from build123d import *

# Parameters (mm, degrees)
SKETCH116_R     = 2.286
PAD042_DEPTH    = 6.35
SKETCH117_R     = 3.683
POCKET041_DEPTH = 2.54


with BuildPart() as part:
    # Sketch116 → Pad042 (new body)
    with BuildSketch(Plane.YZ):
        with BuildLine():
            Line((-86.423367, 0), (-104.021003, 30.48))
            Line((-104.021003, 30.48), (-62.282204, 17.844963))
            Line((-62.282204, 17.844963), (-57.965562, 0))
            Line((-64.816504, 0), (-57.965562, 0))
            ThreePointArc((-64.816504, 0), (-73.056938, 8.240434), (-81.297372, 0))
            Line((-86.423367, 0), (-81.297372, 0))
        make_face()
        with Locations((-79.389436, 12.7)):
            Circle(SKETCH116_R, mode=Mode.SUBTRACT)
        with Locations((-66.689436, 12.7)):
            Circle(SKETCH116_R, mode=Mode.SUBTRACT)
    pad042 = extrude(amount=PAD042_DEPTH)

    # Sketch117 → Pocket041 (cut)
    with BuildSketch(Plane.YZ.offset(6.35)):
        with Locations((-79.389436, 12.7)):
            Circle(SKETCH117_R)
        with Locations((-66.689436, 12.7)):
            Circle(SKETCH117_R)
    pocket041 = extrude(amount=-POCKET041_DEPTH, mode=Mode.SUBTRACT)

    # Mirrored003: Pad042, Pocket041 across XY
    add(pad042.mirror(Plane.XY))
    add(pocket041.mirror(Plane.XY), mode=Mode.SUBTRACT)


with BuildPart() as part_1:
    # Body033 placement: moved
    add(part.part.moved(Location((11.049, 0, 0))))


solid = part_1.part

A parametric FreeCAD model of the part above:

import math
import FreeCAD as App
import Part
import Sketcher

V = App.Vector
Q = App.Units.Quantity

doc = App.newDocument("Part")
body = doc.addObject("PartDesign::Body", "Body")

# Sketch on YZ plane
sketch1 = body.newObject("Sketcher::SketchObject", "Sketch")
sketch1.AttachmentSupport = (doc.getObject("YZ_Plane"), [""])
sketch1.MapMode = "FlatFace"
sketch1.addGeometry([
    Part.LineSegment(V(-104.021003, 30.48, 0), V(-86.423367, 0, 0)),  # 0
    Part.LineSegment(V(-86.423367, 0, 0), V(-81.297372, 0, 0)),  # 1
    Part.ArcOfCircle(Part.Circle(V(-73.056938, 0, 0), V(0, 0, 1), 8.240434), math.radians(0), math.radians(180)),  # 2
    Part.LineSegment(V(-64.816504, 0, 0), V(-57.965562, 0, 0)),  # 3
    Part.LineSegment(V(-57.965562, 0, 0), V(-62.282204, 17.844963, 0)),  # 4
    Part.LineSegment(V(-62.282204, 17.844963, 0), V(-104.021003, 30.48, 0)),  # 5
    Part.Circle(V(-66.689436, 12.7, 0), V(0, 0, 1), 2.286),  # 6
    Part.Circle(V(-79.389436, 12.7, 0), V(0, 0, 1), 2.286),  # 7
], False)
sketch1.addConstraint([
    Sketcher.Constraint("Coincident", 0, 2, 1, 1),
    Sketcher.Constraint("Coincident", 1, 2, 2, 2),
    Sketcher.Constraint("Coincident", 2, 1, 3, 1),
    Sketcher.Constraint("Coincident", 3, 2, 4, 1),
    Sketcher.Constraint("Coincident", 4, 2, 5, 1),
    Sketcher.Constraint("Coincident", 5, 2, 0, 1),
    Sketcher.Constraint("Horizontal", 1),
    Sketcher.Constraint("Horizontal", 3),
    Sketcher.Constraint("Equal", 6, 7),
    Sketcher.Constraint("PointOnObject", 2, 3, -1),
    Sketcher.Constraint("PointOnObject", 0, 2, -1),
    Sketcher.Constraint("PointOnObject", 2, 1, -1),
    Sketcher.Constraint("Horizontal", 6, 3, 7, 3),
    Sketcher.Constraint("Diameter", 6, Q("0.18 in")),
    Sketcher.Constraint("Angle", 0, Q("-60 deg")),
    Sketcher.Constraint("DistanceY", -1, 1, 6, 3, Q("0.5 in")),
    Sketcher.Constraint("DistanceY", -1, 1, 5, 2, Q("1.2 in")),
    Sketcher.Constraint("DistanceX", 7, 3, 6, 3, Q("0.5 in")),
    Sketcher.Constraint("Radius", 2, Q("8.240434 mm")),
    Sketcher.Constraint("DistanceX", 3, 1, 3, 2, Q("6.850942 mm")),
    Sketcher.Constraint("DistanceX", 7, 3, 2, 3, Q("6.332498 mm")),
    Sketcher.Constraint("DistanceX", 2, 1, 4, 2, Q("2.5343 mm")),
    Sketcher.Constraint("DistanceX", 1, 1, 1, 2, Q("5.125995 mm")),
    Sketcher.Constraint("DistanceX", 2, 3, -1, 1, Q("73.056938 mm")),
    Sketcher.Constraint("Distance", 4, Q("18.359632 mm")),
])
pad1 = body.newObject("PartDesign::Pad", "Pad")
pad1.Profile = sketch1
pad1.Length = Q("0.25 in")

# Sketch on YZ plane
sketch2 = body.newObject("Sketcher::SketchObject", "Sketch001")
sketch2.AttachmentSupport = (doc.getObject("YZ_Plane"), [""])
sketch2.MapMode = "FlatFace"
sketch2.AttachmentOffset = App.Placement(V(0, 0, 0.25 * 25.4), App.Rotation())
sketch2.addGeometry([
    Part.Circle(V(-79.389436, 12.7, 0), V(0, 0, 1), 3.683),
    Part.Circle(V(-66.689436, 12.7, 0), V(0, 0, 1), 3.683),
], False)
sketch2.addConstraint([
    Sketcher.Constraint("Equal", 0, 1),
    Sketcher.Constraint("Horizontal", 0, 3, 1, 3),
    Sketcher.Constraint("Diameter", 0, Q("0.29 in")),
    Sketcher.Constraint("DistanceY", -1, 1, 0, 3, Q("0.5 in")),
    Sketcher.Constraint("DistanceX", 0, 3, 1, 3, Q("0.5 in")),
    Sketcher.Constraint("DistanceX", 0, 3, -1, 1, Q("79.389436 mm")),
])
pocket1 = body.newObject("PartDesign::Pocket", "Pocket")
pocket1.Profile = sketch2
pocket1.Length = Q("0.1 in")
doc.recompute()

mirrored = body.newObject("PartDesign::Mirrored", "Mirrored")
mirrored.Originals = [pad1, pocket1]
mirrored.MirrorPlane = (doc.getObject("XY_Plane"), [""])
body.Tip = mirrored
body2 = doc.addObject("PartDesign::Body", "Body001")
doc.recompute()

body.Placement = App.Placement(V(11.049, 0, 0), App.Rotation(V(0, 0, 1), 0))
boolean = body2.newObject("PartDesign::Boolean", "Boolean")
boolean.Type = "Fuse"
boolean.addObjects([body])

doc.recompute()
